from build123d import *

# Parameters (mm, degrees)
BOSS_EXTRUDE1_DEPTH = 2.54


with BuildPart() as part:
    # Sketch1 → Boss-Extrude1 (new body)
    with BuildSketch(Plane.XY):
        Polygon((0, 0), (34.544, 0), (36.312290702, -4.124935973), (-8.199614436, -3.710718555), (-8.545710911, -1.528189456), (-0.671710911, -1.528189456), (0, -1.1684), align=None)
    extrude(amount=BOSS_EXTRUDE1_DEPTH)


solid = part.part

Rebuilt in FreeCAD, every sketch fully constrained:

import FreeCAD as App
import Part
import Sketcher
Q = App.Units.Quantity

doc = App.newDocument("Part")
body = doc.addObject("PartDesign::Body", "Body")

# Sketch on XY plane
sketch1 = body.newObject("Sketcher::SketchObject", "Sketch")
sketch1.AttachmentSupport = (doc.getObject("XY_Plane"), [""])
sketch1.MapMode = "FlatFace"
sketch1.addGeometry([
    Part.LineSegment(App.Vector(34.5, 0, 0), App.Vector(0, 0, 0)),  # 0
    Part.LineSegment(App.Vector(0, 0, 0), App.Vector(0, -1.2, 0)),  # 1
    Part.LineSegment(App.Vector(0, -1.2, 0), App.Vector(-0.7, -1.5, 0)),  # 2
    Part.LineSegment(App.Vector(-0.7, -1.5, 0), App.Vector(-8.5, -1.5, 0)),  # 3
    Part.LineSegment(App.Vector(-8.5, -1.5, 0), App.Vector(-8.2, -3.7, 0)),  # 4
    Part.LineSegment(App.Vector(-8.2, -3.7, 0), App.Vector(36.3, -4.1, 0)),  # 5
    Part.LineSegment(App.Vector(36.3, -4.1, 0), App.Vector(34.5, 0, 0)),  # 6
], False)
sketch1.addConstraint([
    Sketcher.Constraint("Coincident", 0, 2, 1, 1),
    Sketcher.Constraint("Coincident", 1, 2, 2, 1),
    Sketcher.Constraint("Coincident", 2, 2, 3, 1),
    Sketcher.Constraint("Coincident", 3, 2, 4, 1),
    Sketcher.Constraint("Coincident", 4, 2, 5, 1),
    Sketcher.Constraint("Coincident", 5, 2, 6, 1),
    Sketcher.Constraint("Coincident", 6, 2, 0, 1),
    Sketcher.Constraint("Horizontal", 0),
    Sketcher.Constraint("Vertical", 1),
    Sketcher.Constraint("Horizontal", 3),
    Sketcher.Constraint("Coincident", 0, 2, -1, 1),
    Sketcher.Constraint("DistanceX", 0, 2, 0, 1, Q("1.36 in")),
    Sketcher.Constraint("DistanceX", 3, 2, 3, 1, Q("0.31 in")),
    Sketcher.Constraint("Distance", 2, Q("0.03 in")),
    Sketcher.Constraint("DistanceY", 1, 2, 1, 1, Q("0.046 in")),
    Sketcher.Constraint("Distance", 4, Q("0.087 in")),
    Sketcher.Constraint("DistanceX", 2, 2, 5, 2, 36.984002),
    Sketcher.Constraint("Distance", 6, 4.487978),
    Sketcher.Constraint("DistanceX", 2, 2, -1, 1, 0.671711),
    Sketcher.Constraint("DistanceY", 4, 2, -1, 1, 3.710719),
])
pad1 = body.newObject("PartDesign::Pad", "Pad")
pad1.Profile = sketch1
pad1.Length = Q("0.1 in")

doc.recompute()
